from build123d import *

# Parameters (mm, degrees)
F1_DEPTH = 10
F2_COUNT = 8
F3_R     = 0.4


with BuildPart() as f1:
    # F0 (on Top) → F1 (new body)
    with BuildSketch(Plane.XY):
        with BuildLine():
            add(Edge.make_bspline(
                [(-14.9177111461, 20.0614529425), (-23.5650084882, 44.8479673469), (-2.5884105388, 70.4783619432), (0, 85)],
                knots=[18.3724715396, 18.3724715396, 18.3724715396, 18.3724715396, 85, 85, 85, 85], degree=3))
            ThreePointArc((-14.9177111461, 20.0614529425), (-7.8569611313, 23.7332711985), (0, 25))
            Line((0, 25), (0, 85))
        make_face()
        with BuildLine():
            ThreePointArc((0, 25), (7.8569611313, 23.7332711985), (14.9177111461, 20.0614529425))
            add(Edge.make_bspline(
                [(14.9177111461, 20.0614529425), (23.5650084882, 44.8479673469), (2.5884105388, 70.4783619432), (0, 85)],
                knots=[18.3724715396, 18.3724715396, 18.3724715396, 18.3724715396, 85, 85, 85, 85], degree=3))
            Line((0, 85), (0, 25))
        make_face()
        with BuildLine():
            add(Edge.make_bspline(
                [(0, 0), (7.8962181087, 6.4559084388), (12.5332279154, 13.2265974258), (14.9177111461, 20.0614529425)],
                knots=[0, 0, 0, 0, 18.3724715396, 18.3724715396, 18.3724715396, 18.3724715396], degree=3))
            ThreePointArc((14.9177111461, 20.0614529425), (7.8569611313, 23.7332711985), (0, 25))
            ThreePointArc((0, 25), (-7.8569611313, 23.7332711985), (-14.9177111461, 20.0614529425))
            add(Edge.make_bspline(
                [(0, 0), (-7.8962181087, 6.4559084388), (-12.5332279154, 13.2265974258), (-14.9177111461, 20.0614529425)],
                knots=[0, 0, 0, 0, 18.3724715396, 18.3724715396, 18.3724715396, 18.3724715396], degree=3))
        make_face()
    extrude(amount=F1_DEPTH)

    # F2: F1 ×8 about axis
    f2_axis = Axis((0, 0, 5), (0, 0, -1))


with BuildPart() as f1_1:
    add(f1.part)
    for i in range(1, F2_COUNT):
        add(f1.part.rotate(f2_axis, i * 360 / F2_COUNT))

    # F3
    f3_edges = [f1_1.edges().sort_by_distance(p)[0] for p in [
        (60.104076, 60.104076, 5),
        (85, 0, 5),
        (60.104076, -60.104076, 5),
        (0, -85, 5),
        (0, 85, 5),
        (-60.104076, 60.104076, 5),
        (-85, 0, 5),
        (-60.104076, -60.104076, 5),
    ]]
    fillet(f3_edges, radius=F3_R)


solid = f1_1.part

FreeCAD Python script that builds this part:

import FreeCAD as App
import Part
import Sketcher
from FreeCAD import Vector


def edges_at(feature, points):
    """Names of the edges that pass closest to the given points."""
    edges = feature.Shape.Edges
    near = lambda p: min(range(len(edges)), key=lambda i: edges[i].distToShape(Part.Vertex(*p))[0])
    return sorted({f"Edge{near(p) + 1}" for p in points})

doc = App.newDocument("Part")
body = doc.addObject("PartDesign::Body", "Body")

sketch1 = body.newObject("Sketcher::SketchObject", "Sketch")
sketch1.AttachmentSupport = (doc.getObject("XY_Plane"), [""])
sketch1.MapMode = "FlatFace"
sketch1.addGeometry([
    Part.BSplineCurve([Vector(-14.917711, 20.061453, 0), Vector(-23.565008, 44.847967, 0), Vector(-2.588411, 70.478362, 0), Vector(0, 85, 0)], [4, 4], [18.37247154, 85], False, 3, [1, 1, 1, 1], False),
    Part.BSplineCurve([Vector(0, 0, 0), Vector(-7.896218, 6.455908, 0), Vector(-12.533228, 13.226597, 0), Vector(-14.917711, 20.061453, 0)], [4, 4], [0, 18.37247154], False, 3, [1, 1, 1, 1], False),
    Part.BSplineCurve([Vector(0, 0, 0), Vector(7.896218, 6.455908, 0), Vector(12.533228, 13.226597, 0), Vector(14.917711, 20.061453, 0)], [4, 4], [0, 18.37247154], False, 3, [1, 1, 1, 1], False),
    Part.BSplineCurve([Vector(14.917711, 20.061453, 0), Vector(23.565008, 44.847967, 0), Vector(2.588411, 70.478362, 0), Vector(0, 85, 0)], [4, 4], [18.37247154, 85], False, 3, [1, 1, 1, 1], False),
], False)
sketch1.addConstraint([
    Sketcher.Constraint("Block", 0),
    Sketcher.Constraint("Block", 1),
    Sketcher.Constraint("Block", 2),
    Sketcher.Constraint("Block", 3),
])
pad1 = body.newObject("PartDesign::Pad", "Pad")
pad1.Profile = sketch1
pad1.Length = 10
body2 = doc.addObject("PartDesign::Body", "Body001")
doc.recompute()

body2.BaseFeature = body
doc.recompute()

body3 = doc.addObject("PartDesign::Body", "Body002")
body3.BaseFeature = body
body3.Placement = App.Placement(Vector(0, 0, 0), App.Rotation(Vector(0, 0, -1), 45))
boolean = body2.newObject("PartDesign::Boolean", "Boolean")
boolean.Type = "Fuse"
boolean.addObjects([body3])
doc.recompute()

body4 = doc.addObject("PartDesign::Body", "Body003")
body4.BaseFeature = body
body4.Placement = App.Placement(Vector(0, 0, 0), App.Rotation(Vector(0, 0, -1), 90))
boolean2 = body2.newObject("PartDesign::Boolean", "Boolean001")
boolean2.Type = "Fuse"
boolean2.addObjects([body4])
doc.recompute()

body5 = doc.addObject("PartDesign::Body", "Body004")
body5.BaseFeature = body
body5.Placement = App.Placement(Vector(0, 0, 0), App.Rotation(Vector(0, 0, -1), 135))
boolean3 = body2.newObject("PartDesign::Boolean", "Boolean002")
boolean3.Type = "Fuse"
boolean3.addObjects([body5])
doc.recompute()

body6 = doc.addObject("PartDesign::Body", "Body005")
body6.BaseFeature = body
body6.Placement = App.Placement(Vector(0, 0, 0), App.Rotation(Vector(0, 0, -1), 180))
boolean4 = body2.newObject("PartDesign::Boolean", "Boolean003")
boolean4.Type = "Fuse"
boolean4.addObjects([body6])
doc.recompute()

body7 = doc.addObject("PartDesign::Body", "Body006")
body7.BaseFeature = body
body7.Placement = App.Placement(Vector(0, 0, 0), App.Rotation(Vector(0, 0, -1), 225))
boolean5 = body2.newObject("PartDesign::Boolean", "Boolean004")
boolean5.Type = "Fuse"
boolean5.addObjects([body7])
doc.recompute()

body8 = doc.addObject("PartDesign::Body", "Body007")
body8.BaseFeature = body
body8.Placement = App.Placement(Vector(0, 0, 0), App.Rotation(Vector(0, 0, -1), 270))
boolean6 = body2.newObject("PartDesign::Boolean", "Boolean005")
boolean6.Type = "Fuse"
boolean6.addObjects([body8])
doc.recompute()

body.Placement = App.Placement(Vector(0, 0, 0), App.Rotation(Vector(0, 0, -1), 315))
boolean7 = body2.newObject("PartDesign::Boolean", "Boolean006")
boolean7.Type = "Fuse"
boolean7.addObjects([body])
doc.recompute()

fillet = body2.newObject("PartDesign::Fillet", "Fillet")
fillet.Base = (boolean7, edges_at(boolean7, [
    (60.104, 60.104, 5),
    (85, 0, 5),
    (60.104, -60.104, 5),
    (0, -85, 5),
    (0, 85, 5),
    (-60.104, 60.104, 5),
    (-85, 0, 5),
    (-60.104, -60.104, 5),
]))
fillet.Radius = 0.4

doc.recompute()
